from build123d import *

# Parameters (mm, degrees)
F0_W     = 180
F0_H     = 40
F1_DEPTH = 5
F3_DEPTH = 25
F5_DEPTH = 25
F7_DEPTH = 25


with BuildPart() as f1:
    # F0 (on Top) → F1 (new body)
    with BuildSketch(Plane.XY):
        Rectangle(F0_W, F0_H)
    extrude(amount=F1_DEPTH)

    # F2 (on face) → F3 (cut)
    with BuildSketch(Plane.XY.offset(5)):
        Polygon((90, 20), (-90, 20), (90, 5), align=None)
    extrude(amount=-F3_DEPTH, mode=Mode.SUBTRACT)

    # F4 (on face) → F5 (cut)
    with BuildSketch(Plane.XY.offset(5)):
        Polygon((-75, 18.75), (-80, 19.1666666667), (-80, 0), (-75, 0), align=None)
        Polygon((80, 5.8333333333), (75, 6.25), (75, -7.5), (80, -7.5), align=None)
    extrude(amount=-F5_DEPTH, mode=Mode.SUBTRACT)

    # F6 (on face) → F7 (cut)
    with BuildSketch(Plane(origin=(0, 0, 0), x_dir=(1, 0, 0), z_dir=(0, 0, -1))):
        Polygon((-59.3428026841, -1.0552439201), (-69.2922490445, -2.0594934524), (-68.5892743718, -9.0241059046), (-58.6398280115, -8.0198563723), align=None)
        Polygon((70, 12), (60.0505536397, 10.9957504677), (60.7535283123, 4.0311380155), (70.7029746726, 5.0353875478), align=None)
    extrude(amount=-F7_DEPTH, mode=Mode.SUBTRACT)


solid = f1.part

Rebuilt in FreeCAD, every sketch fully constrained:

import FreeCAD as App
import Part
import Sketcher

V = App.Vector
Q = App.Units.Quantity


def add_polygon(sketch, points):
    """Adds a closed chain of lines whose ends are joined by coincident constraints."""
    first, n = sketch.GeometryCount, len(points)
    for a, b in zip(points, points[1:] + points[:1]):
        sketch.addGeometry(Part.LineSegment(App.Vector(*a, 0), App.Vector(*b, 0)), False)
    for i in range(n):
        sketch.addConstraint(Sketcher.Constraint("Coincident", first + i, 2, first + (i + 1) % n, 1))

doc = App.newDocument("Part")
body = doc.addObject("PartDesign::Body", "Body")

sketch1 = doc.addObject("Sketcher::SketchObject", "Sketch")
body.addObject(sketch1)
sketch1.AttachmentSupport = (doc.XY_Plane, [""])
sketch1.MapMode = "FlatFace"
add_polygon(sketch1, [(-90, 20), (-90, -20), (90, -20), (90, 20)])
sketch1.addConstraint([
    Sketcher.Constraint("Vertical", 0),
    Sketcher.Constraint("Horizontal", 1),
    Sketcher.Constraint("Vertical", 2),
    Sketcher.Constraint("Horizontal", 3),
    Sketcher.Constraint("Symmetric", 0, 2, 2, 2, -1, 1),
    Sketcher.Constraint("DistanceX", 1, 1, 1, 2, Q("180 mm")),
    Sketcher.Constraint("DistanceY", 0, 2, 0, 1, Q("40 mm")),
])
pad1 = doc.addObject("PartDesign::Pad", "Pad")
body.addObject(pad1)
pad1.Profile = sketch1
pad1.Length = 5

sketch2 = doc.addObject("Sketcher::SketchObject", "Sketch001")
body.addObject(sketch2)
sketch2.AttachmentSupport = (doc.XY_Plane, [""])
sketch2.MapMode = "FlatFace"
sketch2.AttachmentOffset = App.Placement(V(0, 0, 5), App.Rotation())
add_polygon(sketch2, [(90, 20), (-90, 20), (90, 5)])
sketch2.addConstraint([
    Sketcher.Constraint("Horizontal", 0),
    Sketcher.Constraint("Vertical", 2),
    Sketcher.Constraint("DistanceX", 0, 2, 0, 1, Q("180 mm")),
    Sketcher.Constraint("DistanceY", 2, 1, 2, 2, Q("15 mm")),
    Sketcher.Constraint("DistanceX", 0, 2, -1, 1, Q("90 mm")),
    Sketcher.Constraint("DistanceY", -1, 1, 0, 2, Q("20 mm")),
])
pocket1 = doc.addObject("PartDesign::Pocket", "Pocket")
body.addObject(pocket1)
pocket1.Profile = sketch2
pocket1.Length = 25

sketch3 = doc.addObject("Sketcher::SketchObject", "Sketch002")
body.addObject(sketch3)
sketch3.AttachmentSupport = (doc.XY_Plane, [""])
sketch3.MapMode = "FlatFace"
sketch3.AttachmentOffset = App.Placement(V(0, 0, 5), App.Rotation())
add_polygon(sketch3, [(-75, 18.75), (-80, 19.166667), (-80, 0), (-75, 0)])
add_polygon(sketch3, [(80, 5.833333), (75, 6.25), (75, -7.5), (80, -7.5)])
sketch3.addConstraint([
    Sketcher.Constraint("Vertical", 1),
    Sketcher.Constraint("Horizontal", 2),
    Sketcher.Constraint("Vertical", 3),
    Sketcher.Constraint("Vertical", 5),
    Sketcher.Constraint("Horizontal", 6),
    Sketcher.Constraint("Vertical", 7),
    Sketcher.Constraint("PointOnObject", 1, 2, -1),
    Sketcher.Constraint("Parallel", 0, 4),
    Sketcher.Constraint("Equal", 2, 6),
    Sketcher.Constraint("DistanceX", 2, 1, 2, 2, Q("5 mm")),
    Sketcher.Constraint("DistanceX", 0, 2, -1, 1, Q("80 mm")),
    Sketcher.Constraint("DistanceX", -1, 1, 4, 2, Q("75 mm")),
    Sketcher.Constraint("DistanceY", 3, 1, 3, 2, Q("18.75 mm")),
    Sketcher.Constraint("DistanceY", 5, 2, 5, 1, Q("13.75 mm")),
    Sketcher.Constraint("DistanceY", 5, 2, -1, 1, Q("7.5 mm")),
    Sketcher.Constraint("Distance", 0, Q("5.017331 mm")),
])
pocket2 = doc.addObject("PartDesign::Pocket", "Pocket001")
body.addObject(pocket2)
pocket2.Profile = sketch3
pocket2.Length = 25

sketch4 = doc.addObject("Sketcher::SketchObject", "Sketch003")
body.addObject(sketch4)
sketch4.AttachmentSupport = (doc.XY_Plane, [""])
sketch4.MapMode = "FlatFace"
add_polygon(sketch4, [(-59, 1), (-69, 2), (-69, 9), (-59, 8)])
add_polygon(sketch4, [(70, -12), (60, -11), (61, -4), (71, -5)])
sketch4.addConstraint([
    Sketcher.Constraint("Perpendicular", 0, 1),
    Sketcher.Constraint("Perpendicular", 1, 2),
    Sketcher.Constraint("Perpendicular", 2, 3),
    Sketcher.Constraint("Perpendicular", 3, 4),
    Sketcher.Constraint("Perpendicular", 4, 5),
    Sketcher.Constraint("Perpendicular", 5, 6),
    Sketcher.Constraint("Perpendicular", 6, 7),
    Sketcher.Constraint("Equal", 2, 4),
    Sketcher.Constraint("Equal", 3, 5),
    Sketcher.Constraint("Distance", 0, Q("10 mm")),
    Sketcher.Constraint("Distance", 1, Q("7 mm")),
    Sketcher.Constraint("DistanceX", -1, 1, 7, 2, Q("70 mm")),
    Sketcher.Constraint("DistanceY", 7, 2, -1, 1, Q("12 mm")),
    Sketcher.Constraint("DistanceX", 0, 2, -1, 1, Q("69.292249 mm")),
    Sketcher.Constraint("DistanceX", 2, 2, -1, 1, Q("58.639828 mm")),
    Sketcher.Constraint("DistanceY", 5, 2, 3, 2, Q("5.086382 mm")),
])
pocket3 = doc.addObject("PartDesign::Pocket", "Pocket002")
body.addObject(pocket3)
pocket3.Profile = sketch4
pocket3.Length = 25
pocket3.Reversed = True

doc.recompute()
